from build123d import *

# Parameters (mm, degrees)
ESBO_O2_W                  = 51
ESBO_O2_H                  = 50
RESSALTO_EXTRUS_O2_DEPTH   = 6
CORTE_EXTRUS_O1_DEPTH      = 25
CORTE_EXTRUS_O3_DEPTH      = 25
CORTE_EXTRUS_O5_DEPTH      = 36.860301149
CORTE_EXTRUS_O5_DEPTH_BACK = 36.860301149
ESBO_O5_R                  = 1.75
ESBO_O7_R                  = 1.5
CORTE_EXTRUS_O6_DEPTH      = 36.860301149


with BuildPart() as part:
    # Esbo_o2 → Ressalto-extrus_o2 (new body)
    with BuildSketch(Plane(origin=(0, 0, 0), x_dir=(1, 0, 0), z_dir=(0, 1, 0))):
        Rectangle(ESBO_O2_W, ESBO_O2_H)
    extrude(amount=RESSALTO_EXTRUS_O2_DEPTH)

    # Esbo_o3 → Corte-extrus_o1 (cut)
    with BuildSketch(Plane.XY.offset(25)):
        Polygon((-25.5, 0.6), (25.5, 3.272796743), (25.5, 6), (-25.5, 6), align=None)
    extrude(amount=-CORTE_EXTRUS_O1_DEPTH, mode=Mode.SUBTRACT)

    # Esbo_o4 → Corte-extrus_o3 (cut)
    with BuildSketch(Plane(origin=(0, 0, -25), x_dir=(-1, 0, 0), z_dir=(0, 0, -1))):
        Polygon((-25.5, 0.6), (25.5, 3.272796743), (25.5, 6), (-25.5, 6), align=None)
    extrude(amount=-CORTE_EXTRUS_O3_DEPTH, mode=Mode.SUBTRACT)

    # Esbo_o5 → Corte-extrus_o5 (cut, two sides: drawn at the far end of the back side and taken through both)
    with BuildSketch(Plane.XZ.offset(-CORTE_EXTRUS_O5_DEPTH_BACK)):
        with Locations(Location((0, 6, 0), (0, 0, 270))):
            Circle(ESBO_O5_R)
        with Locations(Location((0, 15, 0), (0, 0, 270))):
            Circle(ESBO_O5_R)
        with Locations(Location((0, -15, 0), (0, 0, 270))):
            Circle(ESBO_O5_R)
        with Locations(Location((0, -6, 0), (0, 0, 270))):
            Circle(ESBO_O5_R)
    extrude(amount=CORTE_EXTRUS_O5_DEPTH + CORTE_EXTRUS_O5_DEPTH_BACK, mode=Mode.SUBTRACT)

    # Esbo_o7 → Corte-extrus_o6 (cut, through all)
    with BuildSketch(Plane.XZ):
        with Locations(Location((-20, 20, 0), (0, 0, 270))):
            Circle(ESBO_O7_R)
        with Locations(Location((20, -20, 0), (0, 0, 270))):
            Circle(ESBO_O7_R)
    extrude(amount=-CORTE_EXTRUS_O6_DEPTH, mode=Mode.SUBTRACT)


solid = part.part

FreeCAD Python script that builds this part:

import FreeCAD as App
import Part
import Sketcher
Q = App.Units.Quantity

doc = App.newDocument("Part")
body = doc.addObject("PartDesign::Body", "Body")

sketch1 = body.newObject("Sketcher::SketchObject", "Sketch")
sketch1.AttachmentSupport = (doc.getObject("XZ_Plane"), [""])
sketch1.MapMode = "FlatFace"
sketch1.addGeometry([
    Part.LineSegment(App.Vector(-26, -25, 0), App.Vector(-26, 25, 0)),
    Part.LineSegment(App.Vector(-26, 25, 0), App.Vector(26, 25, 0)),
    Part.LineSegment(App.Vector(26, 25, 0), App.Vector(26, -25, 0)),
    Part.LineSegment(App.Vector(26, -25, 0), App.Vector(-26, -25, 0)),
], False)
sketch1.addConstraint([
    Sketcher.Constraint("Coincident", 0, 2, 1, 1),
    Sketcher.Constraint("Coincident", 1, 2, 2, 1),
    Sketcher.Constraint("Coincident", 2, 2, 3, 1),
    Sketcher.Constraint("Coincident", 3, 2, 0, 1),
    Sketcher.Constraint("Vertical", 0),
    Sketcher.Constraint("Horizontal", 1),
    Sketcher.Constraint("Vertical", 2),
    Sketcher.Constraint("Horizontal", 3),
    Sketcher.Constraint("Symmetric", 0, 2, 2, 2, -1, 1),
    Sketcher.Constraint("DistanceX", 1, 1, 1, 2, Q("51 mm")),
    Sketcher.Constraint("DistanceY", 0, 1, 0, 2, Q("50 mm")),
])
pad1 = body.newObject("PartDesign::Pad", "Pad")
pad1.Profile = sketch1
pad1.Length = 6
pad1.Reversed = True

sketch2 = body.newObject("Sketcher::SketchObject", "Sketch001")
sketch2.AttachmentSupport = (doc.getObject("XY_Plane"), [""])
sketch2.MapMode = "FlatFace"
sketch2.AttachmentOffset = App.Placement(App.Vector(0, 0, 25), App.Rotation())
sketch2.addGeometry([
    Part.LineSegment(App.Vector(-25.5, 0.6, 0), App.Vector(25.5, 3.3, 0)),
    Part.LineSegment(App.Vector(25.5, 3.3, 0), App.Vector(25.5, 6, 0)),
    Part.LineSegment(App.Vector(25.5, 6, 0), App.Vector(-25.5, 6, 0)),
    Part.LineSegment(App.Vector(-25.5, 6, 0), App.Vector(-25.5, 0.6, 0)),
], False)
sketch2.addConstraint([
    Sketcher.Constraint("Coincident", 0, 2, 1, 1),
    Sketcher.Constraint("Coincident", 1, 2, 2, 1),
    Sketcher.Constraint("Coincident", 2, 2, 3, 1),
    Sketcher.Constraint("Coincident", 3, 2, 0, 1),
    Sketcher.Constraint("Vertical", 1),
    Sketcher.Constraint("Horizontal", 2),
    Sketcher.Constraint("Vertical", 3),
    Sketcher.Constraint("DistanceX", 2, 2, 2, 1, Q("51 mm")),
    Sketcher.Constraint("Angle", 0, Q("3 deg")),
    Sketcher.Constraint("DistanceY", 3, 2, 3, 1, Q("5.4 mm")),
    Sketcher.Constraint("DistanceY", -1, 1, 1, 2, Q("6 mm")),
    Sketcher.Constraint("DistanceX", -1, 1, 0, 2, Q("25.5 mm")),
])
pocket1 = body.newObject("PartDesign::Pocket", "Pocket")
pocket1.Profile = sketch2
pocket1.Length = 25

sketch3 = body.newObject("Sketcher::SketchObject", "Sketch002")
sketch3.AttachmentSupport = (doc.getObject("XY_Plane"), [""])
sketch3.MapMode = "FlatFace"
sketch3.AttachmentOffset = App.Placement(App.Vector(0, 0, -25), App.Rotation())
sketch3.addGeometry([
    Part.LineSegment(App.Vector(25.5, 0.6, 0), App.Vector(-25.5, 3.3, 0)),
    Part.LineSegment(App.Vector(-25.5, 3.3, 0), App.Vector(-25.5, 6, 0)),
    Part.LineSegment(App.Vector(-25.5, 6, 0), App.Vector(25.5, 6, 0)),
    Part.LineSegment(App.Vector(25.5, 6, 0), App.Vector(25.5, 0.6, 0)),
], False)
sketch3.addConstraint([
    Sketcher.Constraint("Coincident", 0, 2, 1, 1),
    Sketcher.Constraint("Coincident", 1, 2, 2, 1),
    Sketcher.Constraint("Coincident", 2, 2, 3, 1),
    Sketcher.Constraint("Coincident", 3, 2, 0, 1),
    Sketcher.Constraint("Vertical", 1),
    Sketcher.Constraint("Horizontal", 2),
    Sketcher.Constraint("Vertical", 3),
    Sketcher.Constraint("DistanceX", 2, 1, 2, 2, Q("51 mm")),
    Sketcher.Constraint("Angle", 0, Q("177 deg")),
    Sketcher.Constraint("DistanceY", 3, 2, 3, 1, Q("5.4 mm")),
    Sketcher.Constraint("DistanceY", -1, 1, 1, 2, Q("6 mm")),
    Sketcher.Constraint("DistanceX", 0, 2, -1, 1, Q("25.5 mm")),
])
pocket2 = body.newObject("PartDesign::Pocket", "Pocket001")
pocket2.Profile = sketch3
pocket2.Length = 25
pocket2.Reversed = True

sketch4 = body.newObject("Sketcher::SketchObject", "Sketch003")
sketch4.AttachmentSupport = (doc.getObject("XZ_Plane"), [""])
sketch4.MapMode = "FlatFace"
sketch4.addGeometry([
    Part.Circle(App.Vector(0, 6, 0), App.Vector(0, 0, 1), 1.8),
    Part.Circle(App.Vector(0, 15, 0), App.Vector(0, 0, 1), 1.8),
    Part.Circle(App.Vector(0, -15, 0), App.Vector(0, 0, 1), 1.8),
    Part.Circle(App.Vector(0, -6, 0), App.Vector(0, 0, 1), 1.8),
], False)
sketch4.addConstraint([
    Sketcher.Constraint("Equal", 0, 1),
    Sketcher.Constraint("Equal", 1, 2),
    Sketcher.Constraint("Equal", 2, 3),
    Sketcher.Constraint("Symmetric", 1, 3, 2, 3, -1, 1),
    Sketcher.Constraint("Symmetric", 0, 3, 3, 3, -1, 1),
    Sketcher.Constraint("PointOnObject", 0, 3, -2),
    Sketcher.Constraint("PointOnObject", 1, 3, -2),
    Sketcher.Constraint("Diameter", 0, Q("3.5 mm")),
    Sketcher.Constraint("DistanceY", -1, 1, 0, 3, Q("6 mm")),
    Sketcher.Constraint("DistanceY", -1, 1, 1, 3, Q("15 mm")),
])
pocket3 = body.newObject("PartDesign::Pocket", "Pocket002")
pocket3.Profile = sketch4
pocket3.Type = "ThroughAll"
pocket3.Midplane = True

sketch5 = body.newObject("Sketcher::SketchObject", "Sketch004")
sketch5.AttachmentSupport = (doc.getObject("XZ_Plane"), [""])
sketch5.MapMode = "FlatFace"
sketch5.addGeometry([
    Part.Circle(App.Vector(-20, 20, 0), App.Vector(0, 0, 1), 1.5),
    Part.Circle(App.Vector(20, -20, 0), App.Vector(0, 0, 1), 1.5),
], False)
sketch5.addConstraint([
    Sketcher.Constraint("Equal", 0, 1),
    Sketcher.Constraint("Symmetric", 0, 3, 1, 3, -1, 1),
    Sketcher.Constraint("Diameter", 0, Q("3 mm")),
    Sketcher.Constraint("DistanceX", 0, 3, -1, 1, Q("20 mm")),
    Sketcher.Constraint("DistanceY", -1, 1, 0, 3, Q("20 mm")),
])
pocket4 = body.newObject("PartDesign::Pocket", "Pocket003")
pocket4.Profile = sketch5
pocket4.Type = "ThroughAll"

doc.recompute()
